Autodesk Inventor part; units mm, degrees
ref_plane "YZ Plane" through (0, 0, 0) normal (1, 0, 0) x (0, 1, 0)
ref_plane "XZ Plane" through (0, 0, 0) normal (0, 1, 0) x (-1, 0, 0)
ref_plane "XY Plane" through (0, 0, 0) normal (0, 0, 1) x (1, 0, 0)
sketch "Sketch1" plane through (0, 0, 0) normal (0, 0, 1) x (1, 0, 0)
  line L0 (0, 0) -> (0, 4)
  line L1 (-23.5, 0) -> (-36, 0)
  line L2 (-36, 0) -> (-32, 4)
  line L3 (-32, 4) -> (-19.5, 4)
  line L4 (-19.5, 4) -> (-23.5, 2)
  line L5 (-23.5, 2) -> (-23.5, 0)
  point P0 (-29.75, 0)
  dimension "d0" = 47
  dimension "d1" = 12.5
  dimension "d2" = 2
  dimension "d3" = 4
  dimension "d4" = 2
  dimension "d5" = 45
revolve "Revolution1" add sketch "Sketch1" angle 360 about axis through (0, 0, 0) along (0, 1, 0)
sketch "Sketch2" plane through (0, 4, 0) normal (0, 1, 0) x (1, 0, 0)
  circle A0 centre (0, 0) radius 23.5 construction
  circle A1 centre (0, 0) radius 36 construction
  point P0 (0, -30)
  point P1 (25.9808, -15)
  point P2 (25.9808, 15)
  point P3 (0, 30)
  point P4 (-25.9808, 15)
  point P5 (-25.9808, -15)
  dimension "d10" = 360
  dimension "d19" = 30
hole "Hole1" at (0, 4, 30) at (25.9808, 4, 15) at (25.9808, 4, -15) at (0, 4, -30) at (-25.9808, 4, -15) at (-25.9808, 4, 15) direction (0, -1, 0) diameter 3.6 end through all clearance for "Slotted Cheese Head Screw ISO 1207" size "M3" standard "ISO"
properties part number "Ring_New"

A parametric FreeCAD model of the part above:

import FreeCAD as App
import Part
import Sketcher


def add_polygon(sketch, points):
    """Adds a closed chain of lines whose ends are joined by coincident constraints."""
    first, n = sketch.GeometryCount, len(points)
    for a, b in zip(points, points[1:] + points[:1]):
        sketch.addGeometry(Part.LineSegment(App.Vector(*a, 0), App.Vector(*b, 0)), False)
    for i in range(n):
        sketch.addConstraint(Sketcher.Constraint("Coincident", first + i, 2, first + (i + 1) % n, 1))

doc = App.newDocument("Part")
body = doc.addObject("PartDesign::Body", "Body")

# Sketch on XY plane
sketch1 = body.newObject("Sketcher::SketchObject", "Sketch")
sketch1.AttachmentSupport = (doc.getObject("XY_Plane"), [""])
sketch1.MapMode = "FlatFace"
add_polygon(sketch1, [(-36, 0), (-23.5, 0), (-23.5, 2), (-19.5, 4), (-32, 4)])  # lines 0-4
sketch1.addConstraint([
    Sketcher.Constraint("Horizontal", 0),
    Sketcher.Constraint("Vertical", 1),
    Sketcher.Constraint("Horizontal", 3),
    Sketcher.Constraint("PointOnObject", 0, 2, -1),
    Sketcher.Constraint("Equal", 0, 3),
    Sketcher.Constraint("DistanceY", 1, 1, 1, 2, 2.0),
    Sketcher.Constraint("DistanceX", 0, 1, 0, 2, 12.5),
    Sketcher.Constraint("DistanceY", -1, 1, 2, 2, 4.0),
    Sketcher.Constraint("DistanceX", 1, 2, 2, 2, 4.0),
    Sketcher.Constraint("DistanceX", 3, 2, -1, 1, 32.0),
])
revolution = body.newObject("PartDesign::Revolution", "Revolution")
revolution.Profile = sketch1
revolution.ReferenceAxis = (sketch1, ["V_Axis"])
revolution.Angle = 360

# Sketch on XZ plane
sketch2 = body.newObject("Sketcher::SketchObject", "Sketch001")
sketch2.AttachmentSupport = (doc.getObject("XZ_Plane"), [""])
sketch2.MapMode = "FlatFace"
sketch2.AttachmentOffset = App.Placement(App.Vector(0, 0, -4), App.Rotation())
sketch2.addGeometry([
    Part.Circle(App.Vector(0, 30, 0), App.Vector(0, 0, 1), 1.8),  # 0
    Part.Circle(App.Vector(26, 15, 0), App.Vector(0, 0, 1), 1.8),  # 1
    Part.Circle(App.Vector(26, -15, 0), App.Vector(0, 0, 1), 1.8),  # 2
    Part.Circle(App.Vector(0, -30, 0), App.Vector(0, 0, 1), 1.8),  # 3
    Part.Circle(App.Vector(-26, -15, 0), App.Vector(0, 0, 1), 1.8),  # 4
    Part.Circle(App.Vector(-26, 15, 0), App.Vector(0, 0, 1), 1.8),  # 5
], False)
sketch2.addConstraint([
    Sketcher.Constraint("Equal", 0, 1),
    Sketcher.Constraint("Equal", 1, 2),
    Sketcher.Constraint("Equal", 2, 3),
    Sketcher.Constraint("Equal", 3, 4),
    Sketcher.Constraint("Equal", 4, 5),
    Sketcher.Constraint("Symmetric", 0, 3, 3, 3, -1, 1),
    Sketcher.Constraint("Symmetric", 1, 3, 4, 3, -1, 1),
    Sketcher.Constraint("Symmetric", 2, 3, 5, 3, -1, 1),
    Sketcher.Constraint("Symmetric", 2, 3, 4, 3, -2),
    Sketcher.Constraint("PointOnObject", 0, 3, -2),
    Sketcher.Constraint("Diameter", 0, 3.6),
    Sketcher.Constraint("DistanceY", -1, 1, 0, 3, 30.0),
    Sketcher.Constraint("DistanceY", -1, 1, 1, 3, 15.0),
    Sketcher.Constraint("DistanceX", -1, 1, 1, 3, 25.9808),
])
doc.recompute()
hole = body.newObject("PartDesign::Hole", "Hole")
hole.Profile = sketch2
hole.ThreadType = "None"
hole.Diameter = 3.6
hole.DepthType = "ThroughAll"
hole.Reversed = True

doc.recompute()
